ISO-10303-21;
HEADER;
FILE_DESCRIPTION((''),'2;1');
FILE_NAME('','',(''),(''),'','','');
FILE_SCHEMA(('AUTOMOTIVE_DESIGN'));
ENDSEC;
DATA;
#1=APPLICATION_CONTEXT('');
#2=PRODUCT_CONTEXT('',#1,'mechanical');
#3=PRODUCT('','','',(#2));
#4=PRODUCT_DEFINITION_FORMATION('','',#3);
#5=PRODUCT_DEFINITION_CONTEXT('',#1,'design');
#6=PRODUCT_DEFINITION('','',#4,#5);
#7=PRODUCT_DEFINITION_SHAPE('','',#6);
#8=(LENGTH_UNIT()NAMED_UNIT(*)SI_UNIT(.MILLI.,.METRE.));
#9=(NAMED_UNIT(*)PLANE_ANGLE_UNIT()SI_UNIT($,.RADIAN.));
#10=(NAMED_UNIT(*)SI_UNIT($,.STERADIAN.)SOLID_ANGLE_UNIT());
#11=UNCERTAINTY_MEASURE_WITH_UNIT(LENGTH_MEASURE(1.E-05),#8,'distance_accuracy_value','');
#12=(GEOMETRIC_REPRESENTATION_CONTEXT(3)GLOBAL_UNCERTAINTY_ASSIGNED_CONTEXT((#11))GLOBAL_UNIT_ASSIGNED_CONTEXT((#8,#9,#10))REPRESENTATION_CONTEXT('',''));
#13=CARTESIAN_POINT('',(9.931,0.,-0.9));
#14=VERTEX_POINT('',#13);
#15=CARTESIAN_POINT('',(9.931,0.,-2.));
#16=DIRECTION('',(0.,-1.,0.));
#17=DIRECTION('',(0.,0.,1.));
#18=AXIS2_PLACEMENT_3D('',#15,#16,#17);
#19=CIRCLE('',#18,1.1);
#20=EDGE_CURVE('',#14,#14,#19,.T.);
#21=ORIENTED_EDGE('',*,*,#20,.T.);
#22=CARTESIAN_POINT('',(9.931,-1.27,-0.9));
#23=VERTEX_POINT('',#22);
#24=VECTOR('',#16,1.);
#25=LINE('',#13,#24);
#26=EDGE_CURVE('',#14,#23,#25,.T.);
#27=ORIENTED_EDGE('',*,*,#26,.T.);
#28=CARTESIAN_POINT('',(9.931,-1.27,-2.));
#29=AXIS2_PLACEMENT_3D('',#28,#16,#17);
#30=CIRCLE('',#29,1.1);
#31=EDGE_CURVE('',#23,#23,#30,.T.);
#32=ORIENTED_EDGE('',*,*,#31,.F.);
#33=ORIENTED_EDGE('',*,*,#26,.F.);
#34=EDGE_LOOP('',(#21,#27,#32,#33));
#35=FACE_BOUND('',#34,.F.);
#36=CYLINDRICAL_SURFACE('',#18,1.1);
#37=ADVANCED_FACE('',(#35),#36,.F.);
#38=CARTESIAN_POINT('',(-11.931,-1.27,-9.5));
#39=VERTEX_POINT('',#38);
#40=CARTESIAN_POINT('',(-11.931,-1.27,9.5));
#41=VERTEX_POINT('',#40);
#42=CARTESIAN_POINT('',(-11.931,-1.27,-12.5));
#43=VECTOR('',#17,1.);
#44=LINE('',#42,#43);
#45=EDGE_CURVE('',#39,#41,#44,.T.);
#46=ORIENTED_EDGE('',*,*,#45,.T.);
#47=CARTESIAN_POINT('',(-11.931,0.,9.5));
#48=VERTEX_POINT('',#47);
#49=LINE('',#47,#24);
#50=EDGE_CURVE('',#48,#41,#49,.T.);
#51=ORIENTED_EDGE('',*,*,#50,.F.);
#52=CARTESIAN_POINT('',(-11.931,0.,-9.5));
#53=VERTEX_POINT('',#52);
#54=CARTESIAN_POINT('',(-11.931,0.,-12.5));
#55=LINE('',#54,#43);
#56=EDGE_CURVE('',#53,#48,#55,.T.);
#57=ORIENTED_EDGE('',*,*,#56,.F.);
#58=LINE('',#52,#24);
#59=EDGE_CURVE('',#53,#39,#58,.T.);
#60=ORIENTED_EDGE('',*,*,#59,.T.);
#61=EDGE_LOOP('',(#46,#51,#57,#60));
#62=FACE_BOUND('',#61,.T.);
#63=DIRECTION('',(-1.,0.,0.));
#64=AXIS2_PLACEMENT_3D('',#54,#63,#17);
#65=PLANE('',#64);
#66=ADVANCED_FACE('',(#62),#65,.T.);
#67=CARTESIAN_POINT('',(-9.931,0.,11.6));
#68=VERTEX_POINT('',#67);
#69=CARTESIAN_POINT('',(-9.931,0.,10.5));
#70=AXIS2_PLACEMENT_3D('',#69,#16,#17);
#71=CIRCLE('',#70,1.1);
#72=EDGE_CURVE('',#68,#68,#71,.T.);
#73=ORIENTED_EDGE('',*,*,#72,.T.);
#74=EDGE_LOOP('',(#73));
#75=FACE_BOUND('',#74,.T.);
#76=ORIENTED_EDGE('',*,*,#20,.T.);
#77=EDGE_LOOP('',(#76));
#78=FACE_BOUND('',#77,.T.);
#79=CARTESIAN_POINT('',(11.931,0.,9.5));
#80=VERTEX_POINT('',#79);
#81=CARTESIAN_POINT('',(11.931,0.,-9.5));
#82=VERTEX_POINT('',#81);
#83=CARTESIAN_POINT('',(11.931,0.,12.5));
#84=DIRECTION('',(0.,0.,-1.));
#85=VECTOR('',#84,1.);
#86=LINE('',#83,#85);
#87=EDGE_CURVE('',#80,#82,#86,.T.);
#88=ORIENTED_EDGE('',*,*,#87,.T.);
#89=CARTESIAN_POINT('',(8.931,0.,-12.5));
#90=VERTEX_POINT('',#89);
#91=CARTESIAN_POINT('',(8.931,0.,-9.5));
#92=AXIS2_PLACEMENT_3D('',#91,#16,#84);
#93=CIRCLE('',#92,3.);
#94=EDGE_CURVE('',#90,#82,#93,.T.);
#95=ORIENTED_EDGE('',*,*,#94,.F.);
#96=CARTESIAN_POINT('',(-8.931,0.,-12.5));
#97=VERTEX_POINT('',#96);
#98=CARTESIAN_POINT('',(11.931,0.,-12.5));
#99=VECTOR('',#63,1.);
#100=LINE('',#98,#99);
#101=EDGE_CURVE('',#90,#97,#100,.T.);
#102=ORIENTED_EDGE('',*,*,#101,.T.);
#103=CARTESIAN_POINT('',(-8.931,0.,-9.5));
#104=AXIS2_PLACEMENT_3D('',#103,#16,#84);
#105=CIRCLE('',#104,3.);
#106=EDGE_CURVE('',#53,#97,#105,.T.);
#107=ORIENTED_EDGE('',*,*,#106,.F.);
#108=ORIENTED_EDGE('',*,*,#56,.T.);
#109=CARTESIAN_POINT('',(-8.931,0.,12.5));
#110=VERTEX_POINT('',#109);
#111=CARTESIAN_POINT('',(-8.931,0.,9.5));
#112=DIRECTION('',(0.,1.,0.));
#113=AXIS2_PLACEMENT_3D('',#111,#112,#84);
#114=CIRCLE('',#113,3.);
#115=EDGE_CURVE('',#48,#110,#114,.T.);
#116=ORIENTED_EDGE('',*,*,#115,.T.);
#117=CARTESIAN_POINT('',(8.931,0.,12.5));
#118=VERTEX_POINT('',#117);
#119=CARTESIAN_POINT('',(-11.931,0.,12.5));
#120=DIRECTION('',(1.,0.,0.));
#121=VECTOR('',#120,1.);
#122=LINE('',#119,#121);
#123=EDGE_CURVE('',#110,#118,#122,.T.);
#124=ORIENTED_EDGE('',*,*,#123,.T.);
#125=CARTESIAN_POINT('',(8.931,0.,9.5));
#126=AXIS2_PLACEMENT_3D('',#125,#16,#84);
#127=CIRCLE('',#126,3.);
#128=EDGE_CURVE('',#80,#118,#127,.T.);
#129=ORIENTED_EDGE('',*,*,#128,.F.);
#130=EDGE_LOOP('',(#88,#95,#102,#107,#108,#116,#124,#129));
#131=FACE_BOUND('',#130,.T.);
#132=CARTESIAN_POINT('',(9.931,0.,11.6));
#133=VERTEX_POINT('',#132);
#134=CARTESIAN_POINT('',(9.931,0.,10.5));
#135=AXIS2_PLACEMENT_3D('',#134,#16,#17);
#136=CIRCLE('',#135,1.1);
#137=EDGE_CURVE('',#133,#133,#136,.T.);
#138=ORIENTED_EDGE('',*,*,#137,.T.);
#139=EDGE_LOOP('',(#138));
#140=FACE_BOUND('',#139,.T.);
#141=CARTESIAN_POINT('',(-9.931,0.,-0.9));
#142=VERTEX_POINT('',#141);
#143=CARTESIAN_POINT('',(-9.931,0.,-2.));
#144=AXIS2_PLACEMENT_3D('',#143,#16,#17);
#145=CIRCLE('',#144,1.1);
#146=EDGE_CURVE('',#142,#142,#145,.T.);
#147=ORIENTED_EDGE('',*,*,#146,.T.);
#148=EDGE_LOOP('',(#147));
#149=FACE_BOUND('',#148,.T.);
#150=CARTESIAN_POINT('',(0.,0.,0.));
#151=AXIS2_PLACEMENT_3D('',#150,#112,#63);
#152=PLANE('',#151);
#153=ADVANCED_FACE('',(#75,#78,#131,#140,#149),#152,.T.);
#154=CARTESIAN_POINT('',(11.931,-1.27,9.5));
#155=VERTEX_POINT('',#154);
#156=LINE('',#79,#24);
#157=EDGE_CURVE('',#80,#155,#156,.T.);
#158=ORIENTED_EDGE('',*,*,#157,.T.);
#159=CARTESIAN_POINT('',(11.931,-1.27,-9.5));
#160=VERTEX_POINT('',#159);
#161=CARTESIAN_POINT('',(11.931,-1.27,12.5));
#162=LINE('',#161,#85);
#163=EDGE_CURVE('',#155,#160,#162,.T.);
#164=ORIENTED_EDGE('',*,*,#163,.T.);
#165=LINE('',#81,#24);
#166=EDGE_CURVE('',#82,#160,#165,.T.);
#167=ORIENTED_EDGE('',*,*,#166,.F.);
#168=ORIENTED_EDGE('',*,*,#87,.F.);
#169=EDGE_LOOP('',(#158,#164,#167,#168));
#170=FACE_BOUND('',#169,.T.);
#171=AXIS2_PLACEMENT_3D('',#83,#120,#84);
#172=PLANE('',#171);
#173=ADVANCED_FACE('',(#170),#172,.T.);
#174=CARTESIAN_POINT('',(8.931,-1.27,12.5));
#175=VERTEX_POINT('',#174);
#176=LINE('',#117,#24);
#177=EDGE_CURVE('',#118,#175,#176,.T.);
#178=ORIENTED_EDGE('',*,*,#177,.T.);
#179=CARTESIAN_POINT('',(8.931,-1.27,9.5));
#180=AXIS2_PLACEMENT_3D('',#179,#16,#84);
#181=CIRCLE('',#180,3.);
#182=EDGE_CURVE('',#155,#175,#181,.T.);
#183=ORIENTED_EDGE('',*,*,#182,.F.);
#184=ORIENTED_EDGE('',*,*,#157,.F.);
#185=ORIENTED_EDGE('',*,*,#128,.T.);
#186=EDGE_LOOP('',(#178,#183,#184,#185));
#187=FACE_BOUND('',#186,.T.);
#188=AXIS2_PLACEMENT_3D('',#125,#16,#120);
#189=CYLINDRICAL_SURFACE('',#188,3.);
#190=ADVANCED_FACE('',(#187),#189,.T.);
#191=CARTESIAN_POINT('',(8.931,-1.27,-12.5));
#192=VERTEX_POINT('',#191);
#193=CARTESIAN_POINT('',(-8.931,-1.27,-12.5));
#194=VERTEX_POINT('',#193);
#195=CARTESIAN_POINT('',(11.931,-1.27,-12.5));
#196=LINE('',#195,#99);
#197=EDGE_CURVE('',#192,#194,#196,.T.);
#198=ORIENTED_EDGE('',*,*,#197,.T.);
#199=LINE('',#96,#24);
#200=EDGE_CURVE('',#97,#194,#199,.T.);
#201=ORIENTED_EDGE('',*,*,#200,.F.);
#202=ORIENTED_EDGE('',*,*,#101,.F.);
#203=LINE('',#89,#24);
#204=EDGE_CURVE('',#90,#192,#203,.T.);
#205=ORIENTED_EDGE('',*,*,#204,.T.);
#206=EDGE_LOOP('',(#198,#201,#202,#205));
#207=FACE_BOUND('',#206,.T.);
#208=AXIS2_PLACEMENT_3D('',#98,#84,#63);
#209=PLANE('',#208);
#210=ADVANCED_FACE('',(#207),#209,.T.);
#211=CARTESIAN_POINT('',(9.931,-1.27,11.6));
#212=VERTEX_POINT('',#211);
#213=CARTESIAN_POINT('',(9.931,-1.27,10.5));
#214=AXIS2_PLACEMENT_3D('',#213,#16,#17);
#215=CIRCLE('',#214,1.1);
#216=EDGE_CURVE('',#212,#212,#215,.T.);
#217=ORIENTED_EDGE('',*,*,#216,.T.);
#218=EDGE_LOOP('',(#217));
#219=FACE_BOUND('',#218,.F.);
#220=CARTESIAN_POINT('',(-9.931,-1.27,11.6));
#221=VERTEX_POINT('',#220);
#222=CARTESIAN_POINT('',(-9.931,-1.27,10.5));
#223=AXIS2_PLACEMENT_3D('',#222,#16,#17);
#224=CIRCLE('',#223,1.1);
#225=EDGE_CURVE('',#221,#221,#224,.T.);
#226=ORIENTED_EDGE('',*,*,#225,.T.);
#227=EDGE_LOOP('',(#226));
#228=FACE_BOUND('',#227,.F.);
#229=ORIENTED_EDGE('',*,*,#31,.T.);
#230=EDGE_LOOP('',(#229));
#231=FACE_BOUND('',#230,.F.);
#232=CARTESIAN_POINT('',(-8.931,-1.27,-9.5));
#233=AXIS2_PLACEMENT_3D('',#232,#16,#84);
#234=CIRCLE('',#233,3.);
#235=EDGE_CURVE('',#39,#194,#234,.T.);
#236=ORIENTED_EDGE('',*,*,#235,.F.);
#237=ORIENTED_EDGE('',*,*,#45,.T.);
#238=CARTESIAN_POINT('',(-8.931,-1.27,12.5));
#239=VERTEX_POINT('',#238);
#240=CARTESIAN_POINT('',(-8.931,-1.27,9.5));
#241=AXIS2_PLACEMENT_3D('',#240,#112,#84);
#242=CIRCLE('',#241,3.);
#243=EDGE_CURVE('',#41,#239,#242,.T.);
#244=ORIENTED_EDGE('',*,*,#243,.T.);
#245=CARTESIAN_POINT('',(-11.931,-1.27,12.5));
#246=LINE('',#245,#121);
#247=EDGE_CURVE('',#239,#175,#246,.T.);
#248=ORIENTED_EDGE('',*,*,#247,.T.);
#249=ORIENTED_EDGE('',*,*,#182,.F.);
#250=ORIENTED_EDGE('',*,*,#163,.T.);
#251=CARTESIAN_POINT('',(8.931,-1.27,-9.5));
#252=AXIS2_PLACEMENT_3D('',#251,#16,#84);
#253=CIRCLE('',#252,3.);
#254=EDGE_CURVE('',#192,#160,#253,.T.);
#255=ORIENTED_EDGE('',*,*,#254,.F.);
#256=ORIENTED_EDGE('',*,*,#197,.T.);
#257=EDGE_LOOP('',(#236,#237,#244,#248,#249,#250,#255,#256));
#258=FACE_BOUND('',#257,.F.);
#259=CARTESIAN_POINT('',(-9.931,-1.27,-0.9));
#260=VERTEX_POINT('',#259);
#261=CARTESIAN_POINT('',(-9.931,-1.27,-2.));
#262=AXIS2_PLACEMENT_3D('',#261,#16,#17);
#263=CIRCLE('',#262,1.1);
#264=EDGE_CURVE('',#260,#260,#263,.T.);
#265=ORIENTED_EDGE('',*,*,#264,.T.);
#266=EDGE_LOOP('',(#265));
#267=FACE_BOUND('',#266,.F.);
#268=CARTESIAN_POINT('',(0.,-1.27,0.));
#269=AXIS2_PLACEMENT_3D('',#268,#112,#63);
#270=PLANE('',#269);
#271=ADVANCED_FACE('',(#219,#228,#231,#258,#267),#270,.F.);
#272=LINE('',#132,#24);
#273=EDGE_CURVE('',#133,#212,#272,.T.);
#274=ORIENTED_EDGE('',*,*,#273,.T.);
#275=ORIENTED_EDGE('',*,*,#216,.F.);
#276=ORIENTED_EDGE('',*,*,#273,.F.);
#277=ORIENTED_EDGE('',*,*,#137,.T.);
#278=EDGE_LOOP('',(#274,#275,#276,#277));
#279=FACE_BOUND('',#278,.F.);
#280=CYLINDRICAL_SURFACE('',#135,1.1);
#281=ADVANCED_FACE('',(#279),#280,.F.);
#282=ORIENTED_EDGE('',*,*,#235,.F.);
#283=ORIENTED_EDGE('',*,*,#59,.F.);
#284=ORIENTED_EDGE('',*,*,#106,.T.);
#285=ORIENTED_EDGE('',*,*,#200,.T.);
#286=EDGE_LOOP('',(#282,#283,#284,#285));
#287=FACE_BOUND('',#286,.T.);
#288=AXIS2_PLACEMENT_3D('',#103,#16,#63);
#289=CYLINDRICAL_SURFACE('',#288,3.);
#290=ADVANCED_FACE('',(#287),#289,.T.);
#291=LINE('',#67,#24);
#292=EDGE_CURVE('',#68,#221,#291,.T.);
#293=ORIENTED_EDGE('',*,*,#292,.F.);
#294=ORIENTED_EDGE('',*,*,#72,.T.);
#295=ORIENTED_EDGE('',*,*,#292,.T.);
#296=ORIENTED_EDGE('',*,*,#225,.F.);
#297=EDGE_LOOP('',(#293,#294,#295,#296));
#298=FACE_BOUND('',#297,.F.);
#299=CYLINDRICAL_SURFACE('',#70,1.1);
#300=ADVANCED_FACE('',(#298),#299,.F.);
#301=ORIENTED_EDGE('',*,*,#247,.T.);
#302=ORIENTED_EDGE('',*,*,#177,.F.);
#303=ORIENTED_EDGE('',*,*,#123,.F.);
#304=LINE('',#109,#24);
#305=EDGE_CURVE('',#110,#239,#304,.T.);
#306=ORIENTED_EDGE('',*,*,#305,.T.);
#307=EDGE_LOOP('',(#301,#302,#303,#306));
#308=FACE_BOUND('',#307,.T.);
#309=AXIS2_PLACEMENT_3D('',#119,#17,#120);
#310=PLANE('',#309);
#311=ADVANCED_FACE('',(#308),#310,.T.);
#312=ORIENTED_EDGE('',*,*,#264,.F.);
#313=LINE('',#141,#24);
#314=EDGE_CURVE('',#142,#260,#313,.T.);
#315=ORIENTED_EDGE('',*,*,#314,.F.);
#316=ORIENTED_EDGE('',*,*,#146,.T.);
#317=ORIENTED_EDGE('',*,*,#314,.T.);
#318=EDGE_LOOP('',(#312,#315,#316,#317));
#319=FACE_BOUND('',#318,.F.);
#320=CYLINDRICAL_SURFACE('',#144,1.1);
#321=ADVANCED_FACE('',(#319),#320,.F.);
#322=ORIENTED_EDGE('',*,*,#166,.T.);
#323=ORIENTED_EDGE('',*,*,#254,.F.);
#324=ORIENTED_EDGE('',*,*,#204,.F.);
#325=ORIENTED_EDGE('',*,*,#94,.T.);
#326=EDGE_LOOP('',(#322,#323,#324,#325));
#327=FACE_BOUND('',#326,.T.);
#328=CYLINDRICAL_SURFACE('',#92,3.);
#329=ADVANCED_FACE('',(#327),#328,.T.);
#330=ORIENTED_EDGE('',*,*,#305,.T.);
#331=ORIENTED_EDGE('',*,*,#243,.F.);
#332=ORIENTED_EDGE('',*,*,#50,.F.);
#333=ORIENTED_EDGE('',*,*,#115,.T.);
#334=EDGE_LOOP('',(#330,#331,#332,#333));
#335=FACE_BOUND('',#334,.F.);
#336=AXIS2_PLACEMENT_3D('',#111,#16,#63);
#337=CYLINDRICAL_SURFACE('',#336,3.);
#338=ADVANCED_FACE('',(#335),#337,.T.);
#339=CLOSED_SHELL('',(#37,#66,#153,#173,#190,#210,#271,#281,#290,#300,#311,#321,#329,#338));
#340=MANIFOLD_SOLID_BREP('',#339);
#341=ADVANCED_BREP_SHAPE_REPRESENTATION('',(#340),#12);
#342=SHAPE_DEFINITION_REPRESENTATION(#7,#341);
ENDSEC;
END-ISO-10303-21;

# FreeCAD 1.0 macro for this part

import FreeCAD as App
import Part
import Sketcher

V = App.Vector
Q = App.Units.Quantity


def edges_at(feature, points):
    """Names of the edges that pass closest to the given points."""
    edges = feature.Shape.Edges
    near = lambda p: min(range(len(edges)), key=lambda i: edges[i].distToShape(Part.Vertex(*p))[0])
    return sorted({f"Edge{near(p) + 1}" for p in points})

doc = App.newDocument("Part")
body = doc.addObject("PartDesign::Body", "Body")

# Sketch on XZ plane
sketch1 = body.newObject("Sketcher::SketchObject", "Sketch")
sketch1.AttachmentSupport = (doc.getObject("XZ_Plane"), [""])
sketch1.MapMode = "FlatFace"
sketch1.addGeometry([
    Part.LineSegment(V(-12, -12, 0), V(-12, 12, 0)),
    Part.LineSegment(V(-12, 12, 0), V(12, 12, 0)),
    Part.LineSegment(V(12, 12, 0), V(12, -12, 0)),
    Part.LineSegment(V(12, -12, 0), V(-12, -12, 0)),
], False)
sketch1.addConstraint([
    Sketcher.Constraint("Coincident", 0, 2, 1, 1),
    Sketcher.Constraint("Coincident", 1, 2, 2, 1),
    Sketcher.Constraint("Coincident", 2, 2, 3, 1),
    Sketcher.Constraint("Coincident", 3, 2, 0, 1),
    Sketcher.Constraint("Vertical", 0),
    Sketcher.Constraint("Horizontal", 1),
    Sketcher.Constraint("Vertical", 2),
    Sketcher.Constraint("Horizontal", 3),
    Sketcher.Constraint("Symmetric", 0, 2, 2, 2, -1, 1),
    Sketcher.Constraint("DistanceY", 0, 1, 0, 2, Q("25 mm")),
    Sketcher.Constraint("DistanceX", 1, 1, 1, 2, Q("23.862 mm")),
])
pad1 = body.newObject("PartDesign::Pad", "Pad")
pad1.Profile = sketch1
pad1.Length = 1.27
doc.recompute()

fillet = body.newObject("PartDesign::Fillet", "Fillet")
fillet.Base = (pad1, edges_at(pad1, [
    (-11.931, -0.635, 12.5),
    (11.931, -0.635, 12.5),
    (11.931, -0.635, -12.5),
    (-11.931, -0.635, -12.5),
]))
fillet.Radius = 3

# Sketch on XZ plane
sketch2 = body.newObject("Sketcher::SketchObject", "Sketch001")
sketch2.AttachmentSupport = (doc.getObject("XZ_Plane"), [""])
sketch2.MapMode = "FlatFace"
sketch2.addGeometry([
    Part.Circle(V(9.9, 10.5, 0), V(0, 0, 1), 1.1),
    Part.Circle(V(9.9, -2, 0), V(0, 0, 1), 1.1),
    Part.Circle(V(-9.9, -2, 0), V(0, 0, 1), 1.1),
    Part.Circle(V(-9.9, 10.5, 0), V(0, 0, 1), 1.1),
], False)
sketch2.addConstraint([
    Sketcher.Constraint("Equal", 0, 1),
    Sketcher.Constraint("Equal", 1, 2),
    Sketcher.Constraint("Equal", 2, 3),
    Sketcher.Constraint("Symmetric", 1, 3, 2, 3, -2),
    Sketcher.Constraint("Symmetric", 0, 3, 3, 3, -2),
    Sketcher.Constraint("Vertical", 0, 3, 1, 3),
    Sketcher.Constraint("Diameter", 0, Q("2.2 mm")),
    Sketcher.Constraint("DistanceY", 1, 3, -1, 1, Q("2 mm")),
    Sketcher.Constraint("DistanceY", -1, 1, 0, 3, Q("10.5 mm")),
    Sketcher.Constraint("DistanceX", -1, 1, 0, 3, Q("9.931 mm")),
])
doc.recompute()
hole = body.newObject("PartDesign::Hole", "Hole")
hole.Profile = sketch2
hole.ThreadType = "None"
hole.Diameter = 2.2
hole.DepthType = "ThroughAll"
hole.Reversed = True

doc.recompute()
